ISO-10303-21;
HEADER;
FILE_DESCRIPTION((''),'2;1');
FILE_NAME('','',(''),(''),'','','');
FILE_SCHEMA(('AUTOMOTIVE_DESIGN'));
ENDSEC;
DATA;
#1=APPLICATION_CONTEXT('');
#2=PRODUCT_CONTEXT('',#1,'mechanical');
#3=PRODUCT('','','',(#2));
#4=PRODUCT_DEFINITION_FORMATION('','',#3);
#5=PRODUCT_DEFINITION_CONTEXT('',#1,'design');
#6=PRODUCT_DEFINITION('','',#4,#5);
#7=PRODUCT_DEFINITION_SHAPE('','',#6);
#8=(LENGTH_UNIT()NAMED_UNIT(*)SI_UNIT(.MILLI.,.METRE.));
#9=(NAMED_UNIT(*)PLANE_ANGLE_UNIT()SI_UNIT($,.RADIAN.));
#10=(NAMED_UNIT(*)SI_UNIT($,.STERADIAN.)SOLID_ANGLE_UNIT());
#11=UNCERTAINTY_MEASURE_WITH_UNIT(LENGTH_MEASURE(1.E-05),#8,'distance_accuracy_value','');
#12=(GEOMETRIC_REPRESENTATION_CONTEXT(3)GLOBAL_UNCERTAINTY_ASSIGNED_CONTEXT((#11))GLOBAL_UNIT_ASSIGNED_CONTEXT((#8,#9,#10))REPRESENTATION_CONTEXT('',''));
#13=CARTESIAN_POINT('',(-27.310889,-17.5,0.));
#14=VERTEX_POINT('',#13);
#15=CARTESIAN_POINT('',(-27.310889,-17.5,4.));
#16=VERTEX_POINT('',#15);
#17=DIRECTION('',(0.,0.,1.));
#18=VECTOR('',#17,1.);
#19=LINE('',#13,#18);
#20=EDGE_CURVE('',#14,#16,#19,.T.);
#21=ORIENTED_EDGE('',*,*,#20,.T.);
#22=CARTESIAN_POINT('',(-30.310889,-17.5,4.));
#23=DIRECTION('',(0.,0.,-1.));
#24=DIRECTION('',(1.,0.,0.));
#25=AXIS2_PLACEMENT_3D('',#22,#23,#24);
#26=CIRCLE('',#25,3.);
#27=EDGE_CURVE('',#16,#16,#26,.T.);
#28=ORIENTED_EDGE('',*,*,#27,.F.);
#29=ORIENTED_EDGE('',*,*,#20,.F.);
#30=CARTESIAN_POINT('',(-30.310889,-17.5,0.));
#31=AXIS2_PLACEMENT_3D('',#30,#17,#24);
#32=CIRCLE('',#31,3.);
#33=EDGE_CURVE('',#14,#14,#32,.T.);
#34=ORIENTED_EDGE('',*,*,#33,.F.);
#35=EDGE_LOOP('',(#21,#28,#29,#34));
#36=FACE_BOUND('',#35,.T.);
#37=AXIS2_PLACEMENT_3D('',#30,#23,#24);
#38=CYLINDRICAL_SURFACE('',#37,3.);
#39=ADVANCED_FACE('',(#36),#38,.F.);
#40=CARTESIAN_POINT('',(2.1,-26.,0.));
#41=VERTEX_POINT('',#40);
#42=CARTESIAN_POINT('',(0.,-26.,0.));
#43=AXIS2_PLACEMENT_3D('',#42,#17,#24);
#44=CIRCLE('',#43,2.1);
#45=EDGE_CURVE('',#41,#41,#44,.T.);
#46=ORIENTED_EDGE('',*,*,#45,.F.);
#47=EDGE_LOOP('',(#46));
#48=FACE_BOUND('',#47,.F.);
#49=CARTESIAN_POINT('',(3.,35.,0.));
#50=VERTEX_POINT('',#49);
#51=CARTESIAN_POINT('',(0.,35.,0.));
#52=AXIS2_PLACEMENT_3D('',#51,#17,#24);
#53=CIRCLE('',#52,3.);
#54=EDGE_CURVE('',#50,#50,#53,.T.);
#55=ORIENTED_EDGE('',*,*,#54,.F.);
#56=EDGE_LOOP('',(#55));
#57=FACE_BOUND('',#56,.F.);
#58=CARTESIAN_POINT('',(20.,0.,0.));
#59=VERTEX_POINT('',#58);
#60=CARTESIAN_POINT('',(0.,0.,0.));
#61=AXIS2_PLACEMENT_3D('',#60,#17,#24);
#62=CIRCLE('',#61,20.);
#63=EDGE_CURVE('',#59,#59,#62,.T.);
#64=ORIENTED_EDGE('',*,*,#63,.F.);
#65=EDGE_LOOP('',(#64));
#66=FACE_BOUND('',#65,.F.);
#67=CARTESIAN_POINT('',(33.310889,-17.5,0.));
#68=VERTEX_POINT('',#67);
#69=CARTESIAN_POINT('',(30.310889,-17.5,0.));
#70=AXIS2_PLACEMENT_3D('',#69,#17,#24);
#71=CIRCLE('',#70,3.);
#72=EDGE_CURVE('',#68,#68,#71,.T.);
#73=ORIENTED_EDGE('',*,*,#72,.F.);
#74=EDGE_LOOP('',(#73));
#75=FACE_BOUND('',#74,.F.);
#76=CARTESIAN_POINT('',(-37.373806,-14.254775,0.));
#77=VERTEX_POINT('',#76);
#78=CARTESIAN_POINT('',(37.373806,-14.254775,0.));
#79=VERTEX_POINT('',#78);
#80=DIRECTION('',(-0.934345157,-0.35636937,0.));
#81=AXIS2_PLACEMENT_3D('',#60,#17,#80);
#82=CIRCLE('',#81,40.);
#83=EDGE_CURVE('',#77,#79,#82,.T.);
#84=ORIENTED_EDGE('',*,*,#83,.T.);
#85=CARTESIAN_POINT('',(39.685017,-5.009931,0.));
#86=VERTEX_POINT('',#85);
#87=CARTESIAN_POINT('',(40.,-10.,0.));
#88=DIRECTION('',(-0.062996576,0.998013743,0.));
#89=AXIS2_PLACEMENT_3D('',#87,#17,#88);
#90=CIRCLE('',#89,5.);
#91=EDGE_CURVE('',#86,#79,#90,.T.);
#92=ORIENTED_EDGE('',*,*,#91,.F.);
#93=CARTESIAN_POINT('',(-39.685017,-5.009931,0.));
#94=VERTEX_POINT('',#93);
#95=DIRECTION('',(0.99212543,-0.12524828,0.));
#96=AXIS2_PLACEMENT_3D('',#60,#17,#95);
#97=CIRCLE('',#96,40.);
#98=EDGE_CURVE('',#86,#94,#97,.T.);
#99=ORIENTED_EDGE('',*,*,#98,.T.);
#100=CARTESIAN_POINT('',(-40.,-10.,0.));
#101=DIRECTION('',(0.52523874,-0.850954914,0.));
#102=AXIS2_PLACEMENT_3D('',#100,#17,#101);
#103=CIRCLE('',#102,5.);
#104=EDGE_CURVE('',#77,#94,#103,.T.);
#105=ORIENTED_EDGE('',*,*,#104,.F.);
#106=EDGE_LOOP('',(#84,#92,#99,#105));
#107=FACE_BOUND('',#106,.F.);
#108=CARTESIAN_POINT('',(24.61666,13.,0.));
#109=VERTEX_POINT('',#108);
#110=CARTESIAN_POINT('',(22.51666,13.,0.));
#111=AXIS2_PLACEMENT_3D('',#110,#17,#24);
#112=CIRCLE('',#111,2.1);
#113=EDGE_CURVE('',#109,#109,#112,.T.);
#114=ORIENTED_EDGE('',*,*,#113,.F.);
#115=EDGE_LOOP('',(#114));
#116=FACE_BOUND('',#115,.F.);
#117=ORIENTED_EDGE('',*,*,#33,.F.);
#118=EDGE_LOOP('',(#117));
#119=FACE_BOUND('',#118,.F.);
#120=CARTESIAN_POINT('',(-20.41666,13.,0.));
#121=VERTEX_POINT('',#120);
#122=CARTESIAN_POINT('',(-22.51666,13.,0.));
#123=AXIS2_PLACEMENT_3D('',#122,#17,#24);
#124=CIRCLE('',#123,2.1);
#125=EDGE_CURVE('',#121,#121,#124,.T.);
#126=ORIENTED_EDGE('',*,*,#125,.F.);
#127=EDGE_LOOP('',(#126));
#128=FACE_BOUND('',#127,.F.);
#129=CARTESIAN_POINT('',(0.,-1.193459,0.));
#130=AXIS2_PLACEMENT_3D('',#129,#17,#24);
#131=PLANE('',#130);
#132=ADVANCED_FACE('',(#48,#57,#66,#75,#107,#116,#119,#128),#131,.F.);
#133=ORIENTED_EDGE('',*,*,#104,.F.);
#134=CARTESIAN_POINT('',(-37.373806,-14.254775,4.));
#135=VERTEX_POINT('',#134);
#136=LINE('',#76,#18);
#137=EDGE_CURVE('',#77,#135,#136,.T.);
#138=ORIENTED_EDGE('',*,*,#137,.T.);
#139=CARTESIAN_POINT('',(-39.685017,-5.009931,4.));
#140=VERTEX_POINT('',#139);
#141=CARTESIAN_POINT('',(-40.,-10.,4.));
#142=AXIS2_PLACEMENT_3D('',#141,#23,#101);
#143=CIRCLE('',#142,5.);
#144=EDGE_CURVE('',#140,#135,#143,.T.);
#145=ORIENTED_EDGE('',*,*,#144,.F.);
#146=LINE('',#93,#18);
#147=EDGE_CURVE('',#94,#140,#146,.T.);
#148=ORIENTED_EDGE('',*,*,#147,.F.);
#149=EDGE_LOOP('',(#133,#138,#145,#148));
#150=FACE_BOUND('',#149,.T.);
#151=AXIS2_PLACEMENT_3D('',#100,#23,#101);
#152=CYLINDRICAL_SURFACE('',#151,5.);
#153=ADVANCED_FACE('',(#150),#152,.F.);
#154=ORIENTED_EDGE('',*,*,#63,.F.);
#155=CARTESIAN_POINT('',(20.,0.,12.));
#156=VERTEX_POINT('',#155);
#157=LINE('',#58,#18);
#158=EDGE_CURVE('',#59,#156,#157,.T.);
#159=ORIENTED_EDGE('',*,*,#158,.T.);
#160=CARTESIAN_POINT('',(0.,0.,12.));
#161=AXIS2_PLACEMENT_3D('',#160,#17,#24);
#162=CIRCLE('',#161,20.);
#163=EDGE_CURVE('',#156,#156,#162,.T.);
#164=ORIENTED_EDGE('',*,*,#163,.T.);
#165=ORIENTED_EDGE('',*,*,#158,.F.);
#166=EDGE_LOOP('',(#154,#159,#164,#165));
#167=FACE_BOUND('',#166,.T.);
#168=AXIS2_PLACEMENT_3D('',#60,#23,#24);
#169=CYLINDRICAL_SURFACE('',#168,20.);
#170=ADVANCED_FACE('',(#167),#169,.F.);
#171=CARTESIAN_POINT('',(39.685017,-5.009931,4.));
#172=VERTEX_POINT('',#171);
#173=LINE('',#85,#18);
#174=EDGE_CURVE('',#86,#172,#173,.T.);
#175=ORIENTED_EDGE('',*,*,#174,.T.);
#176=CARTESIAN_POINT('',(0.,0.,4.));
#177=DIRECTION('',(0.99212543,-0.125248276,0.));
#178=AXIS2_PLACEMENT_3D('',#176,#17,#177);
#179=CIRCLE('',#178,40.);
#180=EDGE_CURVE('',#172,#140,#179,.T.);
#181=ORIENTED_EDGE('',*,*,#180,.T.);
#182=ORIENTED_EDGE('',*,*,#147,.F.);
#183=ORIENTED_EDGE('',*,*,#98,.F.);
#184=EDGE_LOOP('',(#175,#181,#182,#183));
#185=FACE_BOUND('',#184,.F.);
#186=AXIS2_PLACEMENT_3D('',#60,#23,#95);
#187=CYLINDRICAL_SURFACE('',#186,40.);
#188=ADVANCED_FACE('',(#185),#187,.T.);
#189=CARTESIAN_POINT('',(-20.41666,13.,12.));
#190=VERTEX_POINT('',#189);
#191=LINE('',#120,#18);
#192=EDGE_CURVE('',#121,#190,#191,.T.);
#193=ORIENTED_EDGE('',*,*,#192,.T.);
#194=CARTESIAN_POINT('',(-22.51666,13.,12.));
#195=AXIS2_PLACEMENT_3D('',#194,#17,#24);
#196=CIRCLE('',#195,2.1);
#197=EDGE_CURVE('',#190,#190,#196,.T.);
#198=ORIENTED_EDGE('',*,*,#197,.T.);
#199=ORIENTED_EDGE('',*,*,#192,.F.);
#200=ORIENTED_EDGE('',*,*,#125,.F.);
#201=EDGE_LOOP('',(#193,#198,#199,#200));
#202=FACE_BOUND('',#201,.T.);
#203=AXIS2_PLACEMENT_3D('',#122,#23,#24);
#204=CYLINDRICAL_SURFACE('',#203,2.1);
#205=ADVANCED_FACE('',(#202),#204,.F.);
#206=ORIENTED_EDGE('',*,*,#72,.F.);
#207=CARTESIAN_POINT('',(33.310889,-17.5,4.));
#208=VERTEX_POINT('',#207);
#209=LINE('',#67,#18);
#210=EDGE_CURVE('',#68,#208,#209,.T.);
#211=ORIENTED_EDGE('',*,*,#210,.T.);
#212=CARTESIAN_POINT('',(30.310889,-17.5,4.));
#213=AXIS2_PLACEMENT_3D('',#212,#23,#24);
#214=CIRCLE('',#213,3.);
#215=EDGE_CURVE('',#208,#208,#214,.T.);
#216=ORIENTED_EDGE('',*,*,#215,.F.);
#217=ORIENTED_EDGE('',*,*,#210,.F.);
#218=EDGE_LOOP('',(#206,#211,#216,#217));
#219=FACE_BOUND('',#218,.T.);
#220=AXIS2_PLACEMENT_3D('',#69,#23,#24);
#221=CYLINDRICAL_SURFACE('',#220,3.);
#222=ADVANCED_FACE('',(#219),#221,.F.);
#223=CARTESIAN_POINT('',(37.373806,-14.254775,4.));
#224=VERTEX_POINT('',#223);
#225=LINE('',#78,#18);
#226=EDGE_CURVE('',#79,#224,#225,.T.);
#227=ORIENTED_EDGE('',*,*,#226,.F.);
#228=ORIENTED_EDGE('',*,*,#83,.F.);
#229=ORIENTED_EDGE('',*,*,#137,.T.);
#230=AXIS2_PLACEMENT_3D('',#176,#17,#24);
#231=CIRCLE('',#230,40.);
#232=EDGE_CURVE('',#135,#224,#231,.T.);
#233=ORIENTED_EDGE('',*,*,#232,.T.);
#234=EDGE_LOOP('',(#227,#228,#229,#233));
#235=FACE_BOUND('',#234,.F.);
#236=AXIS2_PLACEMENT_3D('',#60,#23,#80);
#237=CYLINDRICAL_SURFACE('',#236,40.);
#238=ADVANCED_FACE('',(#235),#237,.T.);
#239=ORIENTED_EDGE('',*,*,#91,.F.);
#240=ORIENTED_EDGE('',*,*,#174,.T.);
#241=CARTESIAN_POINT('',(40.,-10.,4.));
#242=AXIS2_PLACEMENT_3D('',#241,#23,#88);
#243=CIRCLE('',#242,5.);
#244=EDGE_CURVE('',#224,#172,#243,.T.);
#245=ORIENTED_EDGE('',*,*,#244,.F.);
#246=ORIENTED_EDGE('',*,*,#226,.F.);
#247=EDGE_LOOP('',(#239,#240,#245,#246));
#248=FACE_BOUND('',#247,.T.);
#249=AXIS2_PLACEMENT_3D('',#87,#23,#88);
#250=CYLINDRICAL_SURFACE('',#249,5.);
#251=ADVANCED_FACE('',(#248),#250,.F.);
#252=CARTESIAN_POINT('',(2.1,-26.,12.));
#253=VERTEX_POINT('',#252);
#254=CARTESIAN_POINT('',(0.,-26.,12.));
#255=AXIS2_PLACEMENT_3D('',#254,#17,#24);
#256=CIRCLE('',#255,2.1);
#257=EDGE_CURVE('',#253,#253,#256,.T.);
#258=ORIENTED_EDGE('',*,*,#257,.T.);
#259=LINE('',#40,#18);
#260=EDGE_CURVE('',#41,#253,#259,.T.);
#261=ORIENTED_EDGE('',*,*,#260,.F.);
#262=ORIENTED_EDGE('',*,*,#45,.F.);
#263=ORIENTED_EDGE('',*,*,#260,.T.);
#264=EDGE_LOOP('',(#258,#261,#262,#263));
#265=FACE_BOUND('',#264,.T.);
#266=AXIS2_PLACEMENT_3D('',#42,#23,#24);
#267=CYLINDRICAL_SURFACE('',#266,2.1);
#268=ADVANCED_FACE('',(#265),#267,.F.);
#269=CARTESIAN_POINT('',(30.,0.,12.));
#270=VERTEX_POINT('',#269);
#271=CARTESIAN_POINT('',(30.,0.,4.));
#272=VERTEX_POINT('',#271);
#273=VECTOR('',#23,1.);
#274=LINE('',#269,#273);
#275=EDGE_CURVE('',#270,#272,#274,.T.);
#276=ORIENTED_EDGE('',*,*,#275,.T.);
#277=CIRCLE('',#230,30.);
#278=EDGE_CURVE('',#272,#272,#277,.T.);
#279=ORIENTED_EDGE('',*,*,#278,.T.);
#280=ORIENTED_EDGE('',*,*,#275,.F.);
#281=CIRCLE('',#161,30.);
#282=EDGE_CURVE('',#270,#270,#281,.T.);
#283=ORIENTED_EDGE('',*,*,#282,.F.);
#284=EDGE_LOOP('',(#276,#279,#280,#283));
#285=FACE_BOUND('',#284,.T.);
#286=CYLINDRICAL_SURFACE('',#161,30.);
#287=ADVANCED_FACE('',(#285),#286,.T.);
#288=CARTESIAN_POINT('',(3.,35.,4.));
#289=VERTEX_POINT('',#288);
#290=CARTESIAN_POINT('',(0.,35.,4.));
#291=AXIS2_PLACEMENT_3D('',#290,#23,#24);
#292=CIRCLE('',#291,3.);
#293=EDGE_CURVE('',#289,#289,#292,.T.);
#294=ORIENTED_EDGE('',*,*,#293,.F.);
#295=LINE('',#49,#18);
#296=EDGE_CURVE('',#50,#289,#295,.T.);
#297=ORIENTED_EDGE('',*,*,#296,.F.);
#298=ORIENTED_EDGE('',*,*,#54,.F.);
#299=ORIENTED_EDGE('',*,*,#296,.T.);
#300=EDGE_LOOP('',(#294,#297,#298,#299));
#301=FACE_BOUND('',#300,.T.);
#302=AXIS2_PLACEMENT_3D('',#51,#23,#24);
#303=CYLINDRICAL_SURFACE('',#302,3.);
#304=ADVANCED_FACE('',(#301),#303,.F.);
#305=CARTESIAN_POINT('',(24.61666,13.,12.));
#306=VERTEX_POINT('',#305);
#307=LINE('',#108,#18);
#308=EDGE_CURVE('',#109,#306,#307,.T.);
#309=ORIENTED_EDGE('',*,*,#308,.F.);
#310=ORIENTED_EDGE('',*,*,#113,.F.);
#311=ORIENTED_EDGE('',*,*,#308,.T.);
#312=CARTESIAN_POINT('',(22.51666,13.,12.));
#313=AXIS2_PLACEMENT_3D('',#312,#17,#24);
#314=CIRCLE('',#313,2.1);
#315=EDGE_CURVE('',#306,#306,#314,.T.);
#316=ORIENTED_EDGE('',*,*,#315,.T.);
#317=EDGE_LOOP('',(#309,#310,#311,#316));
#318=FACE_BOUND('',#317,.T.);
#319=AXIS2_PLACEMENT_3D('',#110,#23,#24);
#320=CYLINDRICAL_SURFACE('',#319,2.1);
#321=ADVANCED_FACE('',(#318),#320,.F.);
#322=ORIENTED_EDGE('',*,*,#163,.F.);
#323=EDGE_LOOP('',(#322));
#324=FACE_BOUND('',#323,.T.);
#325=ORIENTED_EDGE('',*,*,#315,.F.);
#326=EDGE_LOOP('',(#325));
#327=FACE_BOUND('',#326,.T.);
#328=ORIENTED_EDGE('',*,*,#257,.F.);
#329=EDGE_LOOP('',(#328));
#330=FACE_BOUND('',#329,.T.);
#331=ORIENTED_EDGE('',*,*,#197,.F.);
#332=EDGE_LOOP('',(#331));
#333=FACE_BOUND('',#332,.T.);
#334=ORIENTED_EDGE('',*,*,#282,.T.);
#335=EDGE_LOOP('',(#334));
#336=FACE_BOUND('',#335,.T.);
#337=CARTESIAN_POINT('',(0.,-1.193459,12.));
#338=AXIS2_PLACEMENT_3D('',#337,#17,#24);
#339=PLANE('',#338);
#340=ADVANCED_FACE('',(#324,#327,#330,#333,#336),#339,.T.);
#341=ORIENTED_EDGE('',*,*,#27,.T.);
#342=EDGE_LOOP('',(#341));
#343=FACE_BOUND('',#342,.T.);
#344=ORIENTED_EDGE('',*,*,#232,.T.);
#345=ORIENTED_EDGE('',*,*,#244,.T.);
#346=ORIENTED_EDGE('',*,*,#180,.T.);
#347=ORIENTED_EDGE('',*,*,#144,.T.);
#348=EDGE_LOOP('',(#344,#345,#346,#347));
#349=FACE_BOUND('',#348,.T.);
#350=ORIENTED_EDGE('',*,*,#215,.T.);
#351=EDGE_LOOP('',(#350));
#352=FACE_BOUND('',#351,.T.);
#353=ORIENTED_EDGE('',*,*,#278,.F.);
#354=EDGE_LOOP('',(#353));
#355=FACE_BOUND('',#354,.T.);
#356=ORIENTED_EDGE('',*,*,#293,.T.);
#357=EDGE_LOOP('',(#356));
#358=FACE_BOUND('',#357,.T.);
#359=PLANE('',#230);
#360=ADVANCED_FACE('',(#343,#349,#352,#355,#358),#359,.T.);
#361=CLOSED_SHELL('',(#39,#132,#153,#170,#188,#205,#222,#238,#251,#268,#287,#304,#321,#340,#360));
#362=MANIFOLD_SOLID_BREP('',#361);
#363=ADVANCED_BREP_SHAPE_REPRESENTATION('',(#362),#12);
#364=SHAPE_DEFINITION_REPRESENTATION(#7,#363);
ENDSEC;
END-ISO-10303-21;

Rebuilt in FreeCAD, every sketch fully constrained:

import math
import FreeCAD as App
import Part
import Sketcher
from FreeCAD import Vector
Q = App.Units.Quantity

doc = App.newDocument("Part")
params = doc.addObject("Spreadsheet::Sheet", "Params")
for row, (alias, value) in enumerate([
    ("sketch1_diameter", "6 mm"),
    ("sketch1_diameter2", "40 mm"),
    ("sketch1_radius", "40 mm"),
    ("sketch1_radius2", "5 mm"),
    ("sketch1_diameter3", "4.2 mm"),
    ("pad1_length", "12 mm"),
    ("sketch2_diameter", "80 mm"),
    ("sketch2_diameter2", "60 mm"),
    ("pocket1_length", "8 mm"),
], start=1):
    params.set(f"A{row}", alias)
    params.set(f"B{row}", "=" + value)
    params.setAlias(f"B{row}", alias)

body = doc.addObject("PartDesign::Body", "Body")

# Sketch on XY plane
sketch1 = body.newObject("Sketcher::SketchObject", "Sketch")
sketch1.AttachmentSupport = (doc.getObject("XY_Plane"), [""])
sketch1.MapMode = "FlatFace"
sketch1.addGeometry([
    Part.ArcOfCircle(Part.Circle(Vector(0, 0, 0), Vector(0, 0, 1), 40), math.radians(-159.122607), math.radians(-20.877393)),  # 0
    Part.ArcOfCircle(Part.Circle(Vector(40, -10, 0), Vector(0, 0, 1), 5), math.radians(93.61183), math.radians(238.315683)),  # 1
    Part.ArcOfCircle(Part.Circle(Vector(0, 0, 0), Vector(0, 0, 1), 40), math.radians(-7.195094), math.radians(187.195094)),  # 2
    Part.ArcOfCircle(Part.Circle(Vector(-40, -10, 0), Vector(0, 0, 1), 5), math.radians(-58.315683), math.radians(86.38817)),  # 3
    Part.Circle(Vector(-30.310889, -17.5, 0), Vector(0, 0, 1), 3),  # 4
    Part.Circle(Vector(0, -26, 0), Vector(0, 0, 1), 2.1),  # 5
    Part.Circle(Vector(30.310889, -17.5, 0), Vector(0, 0, 1), 3),  # 6
    Part.Circle(Vector(0, 0, 0), Vector(0, 0, 1), 20),  # 7
    Part.Circle(Vector(-22.51666, 13, 0), Vector(0, 0, 1), 2.1),  # 8
    Part.Circle(Vector(22.51666, 13, 0), Vector(0, 0, 1), 2.1),  # 9
    Part.Circle(Vector(0, 35, 0), Vector(0, 0, 1), 3),  # 10
], False)
sketch1.addConstraint([
    Sketcher.Constraint("Coincident", 0, 2, 1, 2),
    Sketcher.Constraint("Coincident", 1, 1, 2, 1),
    Sketcher.Constraint("Coincident", 2, 2, 3, 2),
    Sketcher.Constraint("Coincident", 3, 1, 0, 1),
    Sketcher.Constraint("Coincident", 0, 3, -1, 1),
    Sketcher.Constraint("Coincident", 2, 3, -1, 1),
    Sketcher.Constraint("Coincident", 7, 3, -1, 1),
    Sketcher.Constraint("Equal", 0, 2),
    Sketcher.Constraint("Equal", 1, 3),
    Sketcher.Constraint("Equal", 4, 6),
    Sketcher.Constraint("Equal", 5, 8),
    Sketcher.Constraint("Equal", 8, 9),
    Sketcher.Constraint("Equal", 6, 10),
    Sketcher.Constraint("Symmetric", 1, 3, 3, 3, -2),
    Sketcher.Constraint("Symmetric", 4, 3, 6, 3, -2),
    Sketcher.Constraint("Symmetric", 8, 3, 9, 3, -2),
    Sketcher.Constraint("PointOnObject", 5, 3, -2),
    Sketcher.Constraint("PointOnObject", 10, 3, -2),
    Sketcher.Constraint("Diameter", 4, Q("6 mm")),
    Sketcher.Constraint("Diameter", 7, Q("40 mm")),
    Sketcher.Constraint("Radius", 0, Q("40 mm")),
    Sketcher.Constraint("Radius", 1, Q("5 mm")),
    Sketcher.Constraint("Diameter", 5, Q("4.2 mm")),
    Sketcher.Constraint("DistanceX", -1, 1, 1, 3, Q("40 mm")),
    Sketcher.Constraint("DistanceY", 1, 3, -1, 1, Q("10 mm")),
    Sketcher.Constraint("DistanceY", 5, 3, -1, 1, Q("26 mm")),
    Sketcher.Constraint("DistanceY", -1, 1, 8, 3, Q("13 mm")),
    Sketcher.Constraint("DistanceY", -1, 1, 10, 3, Q("35 mm")),
    Sketcher.Constraint("DistanceY", 4, 3, -1, 1, Q("17.5 mm")),
    Sketcher.Constraint("DistanceX", 4, 3, -1, 1, Q("30.310889 mm")),
    Sketcher.Constraint("DistanceX", 8, 3, -1, 1, Q("22.51666 mm")),
])
sketch1.setExpression("Constraints[18]", "Params.sketch1_diameter")
sketch1.setExpression("Constraints[19]", "Params.sketch1_diameter2")
sketch1.setExpression("Constraints[20]", "Params.sketch1_radius")
sketch1.setExpression("Constraints[21]", "Params.sketch1_radius2")
sketch1.setExpression("Constraints[22]", "Params.sketch1_diameter3")
pad1 = body.newObject("PartDesign::Pad", "Pad")
pad1.Profile = sketch1
pad1.setExpression("Length", "Params.pad1_length")

# Sketch on XY plane
sketch2 = body.newObject("Sketcher::SketchObject", "Sketch001")
sketch2.AttachmentSupport = (doc.getObject("XY_Plane"), [""])
sketch2.MapMode = "FlatFace"
sketch2.AttachmentOffset = App.Placement(Vector(0, 0, 12), App.Rotation())
sketch2.addGeometry([
    Part.Circle(Vector(0, 0, 0), Vector(0, 0, 1), 40),
    Part.Circle(Vector(0, 0, 0), Vector(0, 0, 1), 30),
], False)
sketch2.addConstraint([
    Sketcher.Constraint("Coincident", 0, 3, -1, 1),
    Sketcher.Constraint("Coincident", 1, 3, -1, 1),
    Sketcher.Constraint("Diameter", 0, Q("80 mm")),
    Sketcher.Constraint("Diameter", 1, Q("60 mm")),
])
sketch2.setExpression("Constraints[2]", "Params.sketch2_diameter")
sketch2.setExpression("Constraints[3]", "Params.sketch2_diameter2")
pocket1 = body.newObject("PartDesign::Pocket", "Pocket")
pocket1.Profile = sketch2
pocket1.setExpression("Length", "Params.pocket1_length")

doc.recompute()
